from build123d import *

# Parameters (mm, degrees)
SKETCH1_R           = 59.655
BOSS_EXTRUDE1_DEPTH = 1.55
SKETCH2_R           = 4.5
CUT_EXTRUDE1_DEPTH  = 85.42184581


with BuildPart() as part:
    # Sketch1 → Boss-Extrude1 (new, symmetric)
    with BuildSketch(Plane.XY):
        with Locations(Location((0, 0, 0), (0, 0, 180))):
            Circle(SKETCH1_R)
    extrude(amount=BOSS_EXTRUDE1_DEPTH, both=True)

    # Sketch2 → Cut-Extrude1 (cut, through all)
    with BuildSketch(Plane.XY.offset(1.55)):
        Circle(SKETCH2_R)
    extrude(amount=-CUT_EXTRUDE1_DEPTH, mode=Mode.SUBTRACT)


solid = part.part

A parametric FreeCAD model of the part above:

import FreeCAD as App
import Part
import Sketcher
Q = App.Units.Quantity

doc = App.newDocument("Part")
params = doc.addObject("Spreadsheet::Sheet", "Params")
for row, (alias, value) in enumerate([
    ("sketch1_diameter", "119.31 mm"),
    ("pad1_length", "3.1 mm"),
    ("sketch2_diameter", "9 mm"),
], start=1):
    params.set(f"A{row}", alias)
    params.set(f"B{row}", "=" + value)
    params.setAlias(f"B{row}", alias)

body = doc.addObject("PartDesign::Body", "Body")

sketch1 = doc.addObject("Sketcher::SketchObject", "Sketch")
body.addObject(sketch1)
sketch1.AttachmentSupport = (doc.XY_Plane, [""])
sketch1.MapMode = "FlatFace"
sketch1.addGeometry(Part.Circle(App.Vector(0, 0, 0), App.Vector(0, 0, 1), 60), False)
sketch1.addConstraint([
    Sketcher.Constraint("Coincident", 0, 3, -1, 1),
    Sketcher.Constraint("Diameter", 0, Q("119.31 mm")),
])
sketch1.setExpression("Constraints[1]", "Params.sketch1_diameter")
pad1 = doc.addObject("PartDesign::Pad", "Pad")
body.addObject(pad1)
pad1.Profile = sketch1
pad1.setExpression("Length", "Params.pad1_length")
pad1.Midplane = True

sketch2 = doc.addObject("Sketcher::SketchObject", "Sketch001")
body.addObject(sketch2)
sketch2.AttachmentSupport = (doc.XY_Plane, [""])
sketch2.MapMode = "FlatFace"
sketch2.AttachmentOffset = App.Placement(App.Vector(0, 0, 1.55), App.Rotation())
sketch2.addGeometry(Part.Circle(App.Vector(0, 0, 0), App.Vector(0, 0, 1), 4.5), False)
sketch2.addConstraint([
    Sketcher.Constraint("Coincident", 0, 3, -1, 1),
    Sketcher.Constraint("Diameter", 0, Q("9 mm")),
])
sketch2.setExpression("Constraints[1]", "Params.sketch2_diameter")
pocket1 = doc.addObject("PartDesign::Pocket", "Pocket")
body.addObject(pocket1)
pocket1.Profile = sketch2
pocket1.Type = "ThroughAll"

doc.recompute()
